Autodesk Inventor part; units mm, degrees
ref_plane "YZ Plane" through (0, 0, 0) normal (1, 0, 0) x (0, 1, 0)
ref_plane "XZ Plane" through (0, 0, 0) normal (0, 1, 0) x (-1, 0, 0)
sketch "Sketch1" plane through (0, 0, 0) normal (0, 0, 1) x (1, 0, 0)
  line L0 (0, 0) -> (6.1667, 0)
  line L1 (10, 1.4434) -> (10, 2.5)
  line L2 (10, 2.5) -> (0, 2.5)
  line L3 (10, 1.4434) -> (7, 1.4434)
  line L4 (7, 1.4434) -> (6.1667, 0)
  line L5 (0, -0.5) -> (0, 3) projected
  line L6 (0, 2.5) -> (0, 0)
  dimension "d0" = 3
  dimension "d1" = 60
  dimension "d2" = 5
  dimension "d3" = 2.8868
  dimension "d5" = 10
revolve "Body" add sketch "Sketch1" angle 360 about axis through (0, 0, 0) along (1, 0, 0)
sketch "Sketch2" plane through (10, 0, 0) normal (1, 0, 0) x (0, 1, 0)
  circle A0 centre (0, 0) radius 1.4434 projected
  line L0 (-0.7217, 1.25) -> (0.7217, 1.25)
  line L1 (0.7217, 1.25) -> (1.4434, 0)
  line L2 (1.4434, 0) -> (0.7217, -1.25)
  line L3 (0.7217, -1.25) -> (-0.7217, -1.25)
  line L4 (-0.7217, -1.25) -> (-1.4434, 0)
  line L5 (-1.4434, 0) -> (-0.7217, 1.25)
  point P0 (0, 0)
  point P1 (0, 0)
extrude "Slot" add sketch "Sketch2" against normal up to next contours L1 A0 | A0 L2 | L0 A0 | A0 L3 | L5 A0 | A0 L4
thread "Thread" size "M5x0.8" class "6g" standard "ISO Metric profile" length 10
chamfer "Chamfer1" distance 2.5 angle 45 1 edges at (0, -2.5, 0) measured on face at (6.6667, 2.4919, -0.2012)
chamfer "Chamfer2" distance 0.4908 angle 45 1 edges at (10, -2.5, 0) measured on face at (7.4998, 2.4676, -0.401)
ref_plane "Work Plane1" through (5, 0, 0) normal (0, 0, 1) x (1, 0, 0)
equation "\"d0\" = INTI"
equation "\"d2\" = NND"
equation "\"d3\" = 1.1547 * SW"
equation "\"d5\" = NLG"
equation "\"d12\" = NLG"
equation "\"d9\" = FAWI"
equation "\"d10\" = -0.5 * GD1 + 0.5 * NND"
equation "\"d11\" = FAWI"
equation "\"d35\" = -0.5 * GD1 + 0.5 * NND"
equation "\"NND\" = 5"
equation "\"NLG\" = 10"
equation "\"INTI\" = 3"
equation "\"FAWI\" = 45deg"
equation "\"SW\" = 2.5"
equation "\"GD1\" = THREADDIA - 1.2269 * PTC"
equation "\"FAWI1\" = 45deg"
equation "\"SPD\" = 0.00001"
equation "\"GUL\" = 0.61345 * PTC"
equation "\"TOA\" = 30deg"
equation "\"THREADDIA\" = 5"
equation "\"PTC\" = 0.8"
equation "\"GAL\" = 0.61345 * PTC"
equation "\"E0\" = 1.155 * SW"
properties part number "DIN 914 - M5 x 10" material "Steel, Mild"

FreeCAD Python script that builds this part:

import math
import FreeCAD as App
import Part
import Sketcher
from FreeCAD import Vector
Q = App.Units.Quantity


def edges_at(feature, points):
    """Names of the edges that pass closest to the given points."""
    edges = feature.Shape.Edges
    near = lambda p: min(range(len(edges)), key=lambda i: edges[i].distToShape(Part.Vertex(*p))[0])
    return sorted({f"Edge{near(p) + 1}" for p in points})

doc = App.newDocument("Part")
body = doc.addObject("PartDesign::Body", "Body")

# Sketch on XY plane
sketch1 = doc.addObject("Sketcher::SketchObject", "Sketch")
body.addObject(sketch1)
sketch1.AttachmentSupport = (doc.XY_Plane, [""])
sketch1.MapMode = "FlatFace"
sketch1.addGeometry([
    Part.LineSegment(Vector(0, 2.5, 0), Vector(0, 0, 0)),  # 0
    Part.LineSegment(Vector(0, 0, 0), Vector(6.2, 0, 0)),  # 1
    Part.LineSegment(Vector(6.2, 0, 0), Vector(7, 1.4, 0)),  # 2
    Part.LineSegment(Vector(7, 1.4, 0), Vector(10, 1.4, 0)),  # 3
    Part.LineSegment(Vector(10, 1.4, 0), Vector(10, 2.5, 0)),  # 4
    Part.LineSegment(Vector(10, 2.5, 0), Vector(0, 2.5, 0)),  # 5
], False)
sketch1.addConstraint([
    Sketcher.Constraint("Coincident", 0, 2, 1, 1),
    Sketcher.Constraint("Coincident", 1, 2, 2, 1),
    Sketcher.Constraint("Coincident", 2, 2, 3, 1),
    Sketcher.Constraint("Coincident", 3, 2, 4, 1),
    Sketcher.Constraint("Coincident", 4, 2, 5, 1),
    Sketcher.Constraint("Coincident", 5, 2, 0, 1),
    Sketcher.Constraint("Vertical", 0),
    Sketcher.Constraint("Horizontal", 1),
    Sketcher.Constraint("Horizontal", 3),
    Sketcher.Constraint("Vertical", 4),
    Sketcher.Constraint("Horizontal", 5),
    Sketcher.Constraint("Coincident", 0, 2, -1, 1),
    Sketcher.Constraint("DistanceX", 3, 1, 3, 2, 3.0),
    Sketcher.Constraint("DistanceX", 5, 2, 5, 1, 10.0),
    Sketcher.Constraint("DistanceY", 0, 2, 0, 1, 2.5),
    Sketcher.Constraint("DistanceX", 1, 1, 1, 2, 6.1667),
    Sketcher.Constraint("DistanceY", 4, 1, 4, 2, 1.0566),
])
revolution = doc.addObject("PartDesign::Revolution", "Revolution")
body.addObject(revolution)
revolution.Profile = sketch1
revolution.ReferenceAxis = (sketch1, ["H_Axis"])
revolution.Angle = 360

# Sketch on YZ plane
sketch2 = doc.addObject("Sketcher::SketchObject", "Sketch001")
body.addObject(sketch2)
sketch2.AttachmentSupport = (doc.YZ_Plane, [""])
sketch2.MapMode = "FlatFace"
sketch2.AttachmentOffset = App.Placement(Vector(0, 0, 10), App.Rotation())
sketch2.addGeometry([
    Part.LineSegment(Vector(0.7, 1.2, 0), Vector(1.4, 0, 0)),  # 0
    Part.ArcOfCircle(Part.Circle(Vector(0, 0, 0), Vector(0, 0, 1), 1.4), math.radians(0), math.radians(60)),  # 1
    Part.ArcOfCircle(Part.Circle(Vector(0, 0, 0), Vector(0, 0, 1), 1.4), math.radians(-60), math.radians(0)),  # 2
    Part.LineSegment(Vector(1.4, 0, 0), Vector(0.7, -1.2, 0)),  # 3
    Part.LineSegment(Vector(-0.7, 1.2, 0), Vector(0.7, 1.2, 0)),  # 4
    Part.ArcOfCircle(Part.Circle(Vector(0, 0, 0), Vector(0, 0, 1), 1.4), math.radians(60), math.radians(120)),  # 5
    Part.ArcOfCircle(Part.Circle(Vector(0, 0, 0), Vector(0, 0, 1), 1.4), math.radians(-120), math.radians(-60)),  # 6
    Part.LineSegment(Vector(-0.7, -1.2, 0), Vector(0.7, -1.2, 0)),  # 7
    Part.LineSegment(Vector(-1.4, 0, 0), Vector(-0.7, 1.2, 0)),  # 8
    Part.ArcOfCircle(Part.Circle(Vector(0, 0, 0), Vector(0, 0, 1), 1.4), math.radians(120), math.radians(180)),  # 9
    Part.ArcOfCircle(Part.Circle(Vector(0, 0, 0), Vector(0, 0, 1), 1.4), math.radians(180), math.radians(240)),  # 10
    Part.LineSegment(Vector(-1.4, 0, 0), Vector(-0.7, -1.2, 0)),  # 11
], False)
sketch2.addConstraint([
    Sketcher.Constraint("Coincident", 0, 1, 1, 2),
    Sketcher.Constraint("Coincident", 1, 1, 0, 2),
    Sketcher.Constraint("Coincident", 2, 1, 3, 2),
    Sketcher.Constraint("Coincident", 3, 1, 2, 2),
    Sketcher.Constraint("Coincident", 4, 1, 5, 2),
    Sketcher.Constraint("Coincident", 5, 1, 4, 2),
    Sketcher.Constraint("Coincident", 6, 1, 7, 1),
    Sketcher.Constraint("Coincident", 7, 2, 6, 2),
    Sketcher.Constraint("Coincident", 8, 1, 9, 2),
    Sketcher.Constraint("Coincident", 9, 1, 8, 2),
    Sketcher.Constraint("Coincident", 10, 1, 11, 1),
    Sketcher.Constraint("Coincident", 11, 2, 10, 2),
    Sketcher.Constraint("Horizontal", 4),
    Sketcher.Constraint("Horizontal", 7),
    Sketcher.Constraint("Coincident", 1, 3, -1, 1),
    Sketcher.Constraint("Coincident", 2, 3, -1, 1),
    Sketcher.Constraint("Coincident", 5, 3, -1, 1),
    Sketcher.Constraint("Coincident", 6, 3, -1, 1),
    Sketcher.Constraint("Coincident", 9, 3, -1, 1),
    Sketcher.Constraint("Coincident", 10, 3, -1, 1),
    Sketcher.Constraint("Coincident", 3, 1, 1, 1),
    Sketcher.Constraint("Coincident", 5, 1, 0, 1),
    Sketcher.Constraint("Coincident", 7, 2, 2, 1),
    Sketcher.Constraint("Coincident", 9, 1, 4, 1),
    Sketcher.Constraint("Coincident", 10, 1, 8, 1),
    Sketcher.Constraint("PointOnObject", 1, 1, -1),
    Sketcher.Constraint("PointOnObject", 8, 1, -1),
    Sketcher.Constraint("Parallel", 3, 8),
    Sketcher.Constraint("Parallel", 0, 11),
    Sketcher.Constraint("Angle", 0, Q("-59.9996 deg")),
    Sketcher.Constraint("Radius", 1, 1.4434),
])
pad1 = doc.addObject("PartDesign::Pad", "Pad")
body.addObject(pad1)
pad1.Profile = sketch2
pad1.Type = "UpToFirst"
pad1.Reversed = True
doc.recompute()

chamfer = doc.addObject("PartDesign::Chamfer", "Chamfer")
body.addObject(chamfer)
chamfer.Base = (pad1, edges_at(pad1, [(0, -2.5, 0)]))
chamfer.Size = 2.5
doc.recompute()

chamfer2 = doc.addObject("PartDesign::Chamfer", "Chamfer001")
body.addObject(chamfer2)
chamfer2.Base = (chamfer, edges_at(chamfer, [(10, -2.5, 0)]))
chamfer2.Size = 0.4908

doc.recompute()
